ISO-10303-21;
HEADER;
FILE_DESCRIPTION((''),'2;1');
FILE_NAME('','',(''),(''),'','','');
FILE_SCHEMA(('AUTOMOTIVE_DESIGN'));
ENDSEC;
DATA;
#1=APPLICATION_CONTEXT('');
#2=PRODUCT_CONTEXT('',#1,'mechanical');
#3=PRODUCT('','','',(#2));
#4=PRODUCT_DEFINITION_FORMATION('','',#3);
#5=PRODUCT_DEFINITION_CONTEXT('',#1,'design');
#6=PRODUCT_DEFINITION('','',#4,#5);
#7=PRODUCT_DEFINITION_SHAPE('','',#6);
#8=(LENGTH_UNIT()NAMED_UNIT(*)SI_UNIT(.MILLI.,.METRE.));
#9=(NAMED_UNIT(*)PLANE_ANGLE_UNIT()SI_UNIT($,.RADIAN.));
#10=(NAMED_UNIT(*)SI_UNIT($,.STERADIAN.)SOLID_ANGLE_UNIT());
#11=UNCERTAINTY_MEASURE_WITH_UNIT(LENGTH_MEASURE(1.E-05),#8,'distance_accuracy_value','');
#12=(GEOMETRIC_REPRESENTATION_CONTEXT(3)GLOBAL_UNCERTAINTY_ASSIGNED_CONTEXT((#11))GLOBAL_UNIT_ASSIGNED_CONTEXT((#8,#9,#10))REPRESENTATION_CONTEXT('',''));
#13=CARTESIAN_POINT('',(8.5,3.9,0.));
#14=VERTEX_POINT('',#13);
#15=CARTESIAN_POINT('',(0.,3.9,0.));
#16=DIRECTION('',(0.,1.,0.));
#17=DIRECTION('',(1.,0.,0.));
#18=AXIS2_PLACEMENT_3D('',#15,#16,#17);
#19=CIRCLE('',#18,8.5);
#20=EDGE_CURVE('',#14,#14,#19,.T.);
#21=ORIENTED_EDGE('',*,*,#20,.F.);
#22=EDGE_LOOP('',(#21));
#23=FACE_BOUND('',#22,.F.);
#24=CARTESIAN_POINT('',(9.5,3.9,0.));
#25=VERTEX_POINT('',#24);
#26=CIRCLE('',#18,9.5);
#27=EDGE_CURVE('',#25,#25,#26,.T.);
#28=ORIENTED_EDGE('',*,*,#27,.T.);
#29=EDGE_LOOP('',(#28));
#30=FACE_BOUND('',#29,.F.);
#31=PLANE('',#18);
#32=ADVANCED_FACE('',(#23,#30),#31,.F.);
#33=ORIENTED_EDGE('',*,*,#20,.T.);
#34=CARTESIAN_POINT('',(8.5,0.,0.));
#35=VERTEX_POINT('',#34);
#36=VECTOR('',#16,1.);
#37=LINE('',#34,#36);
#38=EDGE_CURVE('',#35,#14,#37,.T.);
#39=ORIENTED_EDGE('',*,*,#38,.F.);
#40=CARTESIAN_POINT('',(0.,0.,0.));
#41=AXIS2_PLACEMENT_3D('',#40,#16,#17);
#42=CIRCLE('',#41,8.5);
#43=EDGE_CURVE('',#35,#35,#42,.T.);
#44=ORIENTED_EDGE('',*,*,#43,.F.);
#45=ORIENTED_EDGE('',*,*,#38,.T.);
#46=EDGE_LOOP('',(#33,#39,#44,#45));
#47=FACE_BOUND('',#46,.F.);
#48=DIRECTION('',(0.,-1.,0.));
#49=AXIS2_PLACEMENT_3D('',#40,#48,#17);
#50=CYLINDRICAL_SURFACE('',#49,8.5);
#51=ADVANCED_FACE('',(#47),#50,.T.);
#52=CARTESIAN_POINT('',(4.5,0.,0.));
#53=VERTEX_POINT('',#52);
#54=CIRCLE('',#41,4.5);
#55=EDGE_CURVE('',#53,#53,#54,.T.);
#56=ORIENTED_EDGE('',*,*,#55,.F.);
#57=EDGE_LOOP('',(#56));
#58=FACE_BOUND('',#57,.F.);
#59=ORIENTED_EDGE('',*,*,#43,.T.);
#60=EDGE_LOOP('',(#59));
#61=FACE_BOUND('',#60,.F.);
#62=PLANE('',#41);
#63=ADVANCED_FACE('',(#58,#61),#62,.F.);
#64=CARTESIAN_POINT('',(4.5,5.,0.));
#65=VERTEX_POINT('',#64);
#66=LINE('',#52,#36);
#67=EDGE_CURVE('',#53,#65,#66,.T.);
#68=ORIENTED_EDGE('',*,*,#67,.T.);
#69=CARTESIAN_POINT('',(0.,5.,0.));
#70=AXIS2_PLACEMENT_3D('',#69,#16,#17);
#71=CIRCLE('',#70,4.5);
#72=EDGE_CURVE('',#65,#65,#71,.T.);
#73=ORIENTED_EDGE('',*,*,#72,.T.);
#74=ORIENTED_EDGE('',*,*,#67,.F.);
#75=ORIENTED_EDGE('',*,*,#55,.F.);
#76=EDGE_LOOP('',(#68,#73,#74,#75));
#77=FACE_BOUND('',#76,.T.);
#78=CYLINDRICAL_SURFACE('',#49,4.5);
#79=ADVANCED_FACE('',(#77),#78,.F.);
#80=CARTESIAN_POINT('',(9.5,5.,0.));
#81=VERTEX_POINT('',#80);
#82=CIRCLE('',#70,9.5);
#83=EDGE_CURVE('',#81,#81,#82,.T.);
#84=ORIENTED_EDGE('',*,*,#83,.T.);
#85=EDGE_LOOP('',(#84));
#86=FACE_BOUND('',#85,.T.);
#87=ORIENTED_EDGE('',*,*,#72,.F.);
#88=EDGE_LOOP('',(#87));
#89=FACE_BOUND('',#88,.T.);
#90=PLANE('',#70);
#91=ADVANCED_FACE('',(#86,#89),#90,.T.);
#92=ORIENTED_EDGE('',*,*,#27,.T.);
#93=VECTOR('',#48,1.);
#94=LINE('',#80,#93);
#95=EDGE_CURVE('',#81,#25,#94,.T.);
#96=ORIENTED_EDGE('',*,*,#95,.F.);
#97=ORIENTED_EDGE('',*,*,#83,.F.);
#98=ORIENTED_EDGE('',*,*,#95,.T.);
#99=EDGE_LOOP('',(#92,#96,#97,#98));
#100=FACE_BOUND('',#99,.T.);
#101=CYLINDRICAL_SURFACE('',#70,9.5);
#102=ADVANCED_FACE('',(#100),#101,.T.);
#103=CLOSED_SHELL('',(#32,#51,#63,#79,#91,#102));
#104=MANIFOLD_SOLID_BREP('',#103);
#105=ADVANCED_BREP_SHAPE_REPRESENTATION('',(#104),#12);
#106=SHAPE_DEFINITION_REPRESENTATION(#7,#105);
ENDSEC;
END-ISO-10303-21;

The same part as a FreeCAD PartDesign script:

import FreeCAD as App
import Part
import Sketcher
Q = App.Units.Quantity

doc = App.newDocument("Part")
body = doc.addObject("PartDesign::Body", "Body")

sketch1 = doc.addObject("Sketcher::SketchObject", "Sketch")
body.addObject(sketch1)
sketch1.AttachmentSupport = (doc.XZ_Plane, [""])
sketch1.MapMode = "FlatFace"
sketch1.addGeometry(Part.Circle(App.Vector(0, 0, 0), App.Vector(0, 0, 1), 8.5), False)
sketch1.addGeometry(Part.Circle(App.Vector(0, 0, 0), App.Vector(0, 0, 1), 4.5), False)
sketch1.addConstraint(Sketcher.Constraint("Coincident", 0, 3, -1, 1))
sketch1.addConstraint(Sketcher.Constraint("Coincident", 1, 3, -1, 1))
sketch1.addConstraint(Sketcher.Constraint("Diameter", 0, Q("17 mm")))
sketch1.addConstraint(Sketcher.Constraint("Diameter", 1, Q("9 mm")))
pad1 = doc.addObject("PartDesign::Pad", "Pad")
body.addObject(pad1)
pad1.Profile = sketch1
pad1.Length = 5
pad1.Reversed = True

sketch2 = doc.addObject("Sketcher::SketchObject", "Sketch001")
body.addObject(sketch2)
sketch2.AttachmentSupport = (doc.XZ_Plane, [""])
sketch2.MapMode = "FlatFace"
sketch2.AttachmentOffset = App.Placement(App.Vector(0, 0, -5), App.Rotation())
sketch2.addGeometry(Part.Circle(App.Vector(0, 0, 0), App.Vector(0, 0, 1), 10), False)
sketch2.addGeometry(Part.Circle(App.Vector(0, 0, 0), App.Vector(0, 0, 1), 8), False)
sketch2.addConstraint(Sketcher.Constraint("Coincident", 0, 3, -1, 1))
sketch2.addConstraint(Sketcher.Constraint("Coincident", 1, 3, -1, 1))
sketch2.addConstraint(Sketcher.Constraint("Diameter", 0, Q("19 mm")))
sketch2.addConstraint(Sketcher.Constraint("Diameter", 1, Q("17 mm")))
pad2 = doc.addObject("PartDesign::Pad", "Pad001")
body.addObject(pad2)
pad2.Profile = sketch2
pad2.Length = 1.1

doc.recompute()
